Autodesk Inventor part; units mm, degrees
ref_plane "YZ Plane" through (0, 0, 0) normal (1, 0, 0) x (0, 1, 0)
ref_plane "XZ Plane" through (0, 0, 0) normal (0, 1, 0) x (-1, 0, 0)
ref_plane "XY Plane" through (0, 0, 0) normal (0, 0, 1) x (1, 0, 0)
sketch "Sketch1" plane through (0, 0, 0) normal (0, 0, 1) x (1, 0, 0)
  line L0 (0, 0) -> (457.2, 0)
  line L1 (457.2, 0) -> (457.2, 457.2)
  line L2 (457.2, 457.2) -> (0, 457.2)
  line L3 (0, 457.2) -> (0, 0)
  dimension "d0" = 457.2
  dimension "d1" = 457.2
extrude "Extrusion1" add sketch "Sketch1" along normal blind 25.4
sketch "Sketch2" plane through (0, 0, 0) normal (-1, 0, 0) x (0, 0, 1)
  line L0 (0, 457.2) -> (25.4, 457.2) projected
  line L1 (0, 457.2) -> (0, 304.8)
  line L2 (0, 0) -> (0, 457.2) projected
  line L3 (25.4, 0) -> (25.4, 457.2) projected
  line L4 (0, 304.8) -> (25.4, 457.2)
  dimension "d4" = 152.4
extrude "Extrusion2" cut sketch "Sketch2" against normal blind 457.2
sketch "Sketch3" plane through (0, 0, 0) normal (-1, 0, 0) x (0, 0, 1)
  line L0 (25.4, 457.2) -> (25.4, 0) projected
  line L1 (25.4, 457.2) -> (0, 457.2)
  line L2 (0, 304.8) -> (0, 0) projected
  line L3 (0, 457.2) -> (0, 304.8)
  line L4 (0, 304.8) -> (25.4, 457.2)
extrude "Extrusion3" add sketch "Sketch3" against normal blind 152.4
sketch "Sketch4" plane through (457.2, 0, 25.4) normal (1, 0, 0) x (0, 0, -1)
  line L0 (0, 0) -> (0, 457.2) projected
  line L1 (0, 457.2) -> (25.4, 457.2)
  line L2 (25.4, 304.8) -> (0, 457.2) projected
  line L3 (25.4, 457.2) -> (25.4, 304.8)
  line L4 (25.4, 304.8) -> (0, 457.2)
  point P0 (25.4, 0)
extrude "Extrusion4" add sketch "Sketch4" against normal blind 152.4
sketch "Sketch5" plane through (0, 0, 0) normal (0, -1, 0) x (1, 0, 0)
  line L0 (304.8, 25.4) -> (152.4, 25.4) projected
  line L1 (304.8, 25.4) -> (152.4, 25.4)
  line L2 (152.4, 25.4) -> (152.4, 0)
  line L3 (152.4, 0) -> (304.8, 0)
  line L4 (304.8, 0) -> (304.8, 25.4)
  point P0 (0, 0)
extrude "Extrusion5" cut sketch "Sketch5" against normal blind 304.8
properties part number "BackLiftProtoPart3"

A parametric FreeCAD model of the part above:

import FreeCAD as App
import Part
import Sketcher
Q = App.Units.Quantity

doc = App.newDocument("Part")
params = doc.addObject("Spreadsheet::Sheet", "Params")
for row, (alias, value) in enumerate([
    ("sketch1_width", "18 in"),
    ("pad1_length", "1 in"),
    ("sketch2_width", "6 in"),
    ("sketch2_height", "1 in"),
    ("pocket1_length", "18 in"),
    ("sketch3_width", "6 in"),
    ("sketch3_height", "1 in"),
    ("pad2_length", "6 in"),
    ("sketch4_width", "6 in"),
    ("sketch4_height", "1 in"),
    ("pad3_length", "6 in"),
    ("sketch5_width", "6 in"),
    ("sketch5_height", "1 in"),
    ("pocket2_length", "12 in"),
], start=1):
    params.set(f"A{row}", alias)
    params.set(f"B{row}", "=" + value)
    params.setAlias(f"B{row}", alias)

body = doc.addObject("PartDesign::Body", "Body")

# Sketch on XY plane
sketch1 = body.newObject("Sketcher::SketchObject", "Sketch")
sketch1.AttachmentSupport = (doc.getObject("XY_Plane"), [""])
sketch1.MapMode = "FlatFace"
sketch1.addGeometry(Part.LineSegment(App.Vector(0, 457, 0), App.Vector(0, 0, 0)), False)
sketch1.addGeometry(Part.LineSegment(App.Vector(0, 0, 0), App.Vector(457, 0, 0)), False)
sketch1.addGeometry(Part.LineSegment(App.Vector(457, 0, 0), App.Vector(457, 457, 0)), False)
sketch1.addGeometry(Part.LineSegment(App.Vector(457, 457, 0), App.Vector(0, 457, 0)), False)
sketch1.addConstraint(Sketcher.Constraint("Coincident", 0, 2, 1, 1))
sketch1.addConstraint(Sketcher.Constraint("Coincident", 1, 2, 2, 1))
sketch1.addConstraint(Sketcher.Constraint("Coincident", 2, 2, 3, 1))
sketch1.addConstraint(Sketcher.Constraint("Coincident", 3, 2, 0, 1))
sketch1.addConstraint(Sketcher.Constraint("Vertical", 0))
sketch1.addConstraint(Sketcher.Constraint("Horizontal", 1))
sketch1.addConstraint(Sketcher.Constraint("Vertical", 2))
sketch1.addConstraint(Sketcher.Constraint("Horizontal", 3))
sketch1.addConstraint(Sketcher.Constraint("Coincident", 0, 2, -1, 1))
sketch1.addConstraint(Sketcher.Constraint("Equal", 3, 0))
sketch1.addConstraint(Sketcher.Constraint("DistanceX", 1, 1, 1, 2, Q("18 in")))
sketch1.setExpression("Constraints[10]", "Params.sketch1_width")
pad1 = body.newObject("PartDesign::Pad", "Pad")
pad1.Profile = sketch1
pad1.setExpression("Length", "Params.pad1_length")

# Sketch on YZ plane
sketch2 = body.newObject("Sketcher::SketchObject", "Sketch001")
sketch2.AttachmentSupport = (doc.getObject("YZ_Plane"), [""])
sketch2.MapMode = "FlatFace"
sketch2.addGeometry(Part.LineSegment(App.Vector(457, 25, 0), App.Vector(457, 0, 0)), False)
sketch2.addGeometry(Part.LineSegment(App.Vector(457, 0, 0), App.Vector(305, 0, 0)), False)
sketch2.addGeometry(Part.LineSegment(App.Vector(305, 0, 0), App.Vector(457, 25, 0)), False)
sketch2.addConstraint(Sketcher.Constraint("Coincident", 0, 2, 1, 1))
sketch2.addConstraint(Sketcher.Constraint("Coincident", 1, 2, 2, 1))
sketch2.addConstraint(Sketcher.Constraint("Coincident", 2, 2, 0, 1))
sketch2.addConstraint(Sketcher.Constraint("Vertical", 0))
sketch2.addConstraint(Sketcher.Constraint("Horizontal", 1))
sketch2.addConstraint(Sketcher.Constraint("PointOnObject", 0, 2, -1))
sketch2.addConstraint(Sketcher.Constraint("DistanceX", 1, 2, 1, 1, Q("6 in")))
sketch2.addConstraint(Sketcher.Constraint("DistanceY", 0, 2, 0, 1, Q("1 in")))
sketch2.addConstraint(Sketcher.Constraint("DistanceX", -1, 1, 0, 2, Q("18 in")))
sketch2.setExpression("Constraints[6]", "Params.sketch2_width")
sketch2.setExpression("Constraints[7]", "Params.sketch2_height")
pocket1 = body.newObject("PartDesign::Pocket", "Pocket")
pocket1.Profile = sketch2
pocket1.setExpression("Length", "Params.pocket1_length")
pocket1.Reversed = True

# Sketch on YZ plane
sketch3 = body.newObject("Sketcher::SketchObject", "Sketch002")
sketch3.AttachmentSupport = (doc.getObject("YZ_Plane"), [""])
sketch3.MapMode = "FlatFace"
sketch3.addGeometry(Part.LineSegment(App.Vector(305, 0, 0), App.Vector(457, 25, 0)), False)
sketch3.addGeometry(Part.LineSegment(App.Vector(457, 25, 0), App.Vector(457, 0, 0)), False)
sketch3.addGeometry(Part.LineSegment(App.Vector(457, 0, 0), App.Vector(305, 0, 0)), False)
sketch3.addConstraint(Sketcher.Constraint("Coincident", 0, 2, 1, 1))
sketch3.addConstraint(Sketcher.Constraint("Coincident", 1, 2, 2, 1))
sketch3.addConstraint(Sketcher.Constraint("Coincident", 2, 2, 0, 1))
sketch3.addConstraint(Sketcher.Constraint("Vertical", 1))
sketch3.addConstraint(Sketcher.Constraint("Horizontal", 2))
sketch3.addConstraint(Sketcher.Constraint("PointOnObject", 1, 2, -1))
sketch3.addConstraint(Sketcher.Constraint("DistanceX", 2, 2, 2, 1, Q("6 in")))
sketch3.addConstraint(Sketcher.Constraint("DistanceY", 1, 2, 1, 1, Q("1 in")))
sketch3.addConstraint(Sketcher.Constraint("DistanceX", -1, 1, 0, 2, Q("18 in")))
sketch3.setExpression("Constraints[6]", "Params.sketch3_width")
sketch3.setExpression("Constraints[7]", "Params.sketch3_height")
pad2 = body.newObject("PartDesign::Pad", "Pad001")
pad2.Profile = sketch3
pad2.setExpression("Length", "Params.pad2_length")

# Sketch on YZ plane
sketch4 = body.newObject("Sketcher::SketchObject", "Sketch003")
sketch4.AttachmentSupport = (doc.getObject("YZ_Plane"), [""])
sketch4.MapMode = "FlatFace"
sketch4.AttachmentOffset = App.Placement(App.Vector(0, 0, 18 * 25.4), App.Rotation())
sketch4.addGeometry(Part.LineSegment(App.Vector(457, 0, 0), App.Vector(457, 25, 0)), False)
sketch4.addGeometry(Part.LineSegment(App.Vector(457, 25, 0), App.Vector(305, 0, 0)), False)
sketch4.addGeometry(Part.LineSegment(App.Vector(305, 0, 0), App.Vector(457, 0, 0)), False)
sketch4.addConstraint(Sketcher.Constraint("Coincident", 0, 2, 1, 1))
sketch4.addConstraint(Sketcher.Constraint("Coincident", 1, 2, 2, 1))
sketch4.addConstraint(Sketcher.Constraint("Coincident", 2, 2, 0, 1))
sketch4.addConstraint(Sketcher.Constraint("Vertical", 0))
sketch4.addConstraint(Sketcher.Constraint("Horizontal", 2))
sketch4.addConstraint(Sketcher.Constraint("PointOnObject", 1, 2, -1))
sketch4.addConstraint(Sketcher.Constraint("DistanceX", 2, 1, 2, 2, Q("6 in")))
sketch4.addConstraint(Sketcher.Constraint("DistanceY", 0, 1, 0, 2, Q("1 in")))
sketch4.addConstraint(Sketcher.Constraint("DistanceX", -1, 1, 0, 2, Q("18 in")))
sketch4.setExpression("Constraints[6]", "Params.sketch4_width")
sketch4.setExpression("Constraints[7]", "Params.sketch4_height")
pad3 = body.newObject("PartDesign::Pad", "Pad002")
pad3.Profile = sketch4
pad3.setExpression("Length", "Params.pad3_length")
pad3.Reversed = True

# Sketch on XZ plane
sketch5 = body.newObject("Sketcher::SketchObject", "Sketch004")
sketch5.AttachmentSupport = (doc.getObject("XZ_Plane"), [""])
sketch5.MapMode = "FlatFace"
sketch5.addGeometry(Part.LineSegment(App.Vector(305, 0, 0), App.Vector(305, 25, 0)), False)
sketch5.addGeometry(Part.LineSegment(App.Vector(305, 25, 0), App.Vector(152, 25, 0)), False)
sketch5.addGeometry(Part.LineSegment(App.Vector(152, 25, 0), App.Vector(152, 0, 0)), False)
sketch5.addGeometry(Part.LineSegment(App.Vector(152, 0, 0), App.Vector(305, 0, 0)), False)
sketch5.addConstraint(Sketcher.Constraint("Coincident", 0, 2, 1, 1))
sketch5.addConstraint(Sketcher.Constraint("Coincident", 1, 2, 2, 1))
sketch5.addConstraint(Sketcher.Constraint("Coincident", 2, 2, 3, 1))
sketch5.addConstraint(Sketcher.Constraint("Coincident", 3, 2, 0, 1))
sketch5.addConstraint(Sketcher.Constraint("Vertical", 0))
sketch5.addConstraint(Sketcher.Constraint("Horizontal", 1))
sketch5.addConstraint(Sketcher.Constraint("Vertical", 2))
sketch5.addConstraint(Sketcher.Constraint("Horizontal", 3))
sketch5.addConstraint(Sketcher.Constraint("PointOnObject", 2, 2, -1))
sketch5.addConstraint(Sketcher.Constraint("DistanceX", 1, 2, 1, 1, Q("6 in")))
sketch5.addConstraint(Sketcher.Constraint("DistanceY", 0, 1, 0, 2, Q("1 in")))
sketch5.addConstraint(Sketcher.Constraint("DistanceX", -1, 1, 0, 2, Q("12 in")))
sketch5.setExpression("Constraints[9]", "Params.sketch5_width")
sketch5.setExpression("Constraints[10]", "Params.sketch5_height")
pocket2 = body.newObject("PartDesign::Pocket", "Pocket001")
pocket2.Profile = sketch5
pocket2.setExpression("Length", "Params.pocket2_length")

doc.recompute()
